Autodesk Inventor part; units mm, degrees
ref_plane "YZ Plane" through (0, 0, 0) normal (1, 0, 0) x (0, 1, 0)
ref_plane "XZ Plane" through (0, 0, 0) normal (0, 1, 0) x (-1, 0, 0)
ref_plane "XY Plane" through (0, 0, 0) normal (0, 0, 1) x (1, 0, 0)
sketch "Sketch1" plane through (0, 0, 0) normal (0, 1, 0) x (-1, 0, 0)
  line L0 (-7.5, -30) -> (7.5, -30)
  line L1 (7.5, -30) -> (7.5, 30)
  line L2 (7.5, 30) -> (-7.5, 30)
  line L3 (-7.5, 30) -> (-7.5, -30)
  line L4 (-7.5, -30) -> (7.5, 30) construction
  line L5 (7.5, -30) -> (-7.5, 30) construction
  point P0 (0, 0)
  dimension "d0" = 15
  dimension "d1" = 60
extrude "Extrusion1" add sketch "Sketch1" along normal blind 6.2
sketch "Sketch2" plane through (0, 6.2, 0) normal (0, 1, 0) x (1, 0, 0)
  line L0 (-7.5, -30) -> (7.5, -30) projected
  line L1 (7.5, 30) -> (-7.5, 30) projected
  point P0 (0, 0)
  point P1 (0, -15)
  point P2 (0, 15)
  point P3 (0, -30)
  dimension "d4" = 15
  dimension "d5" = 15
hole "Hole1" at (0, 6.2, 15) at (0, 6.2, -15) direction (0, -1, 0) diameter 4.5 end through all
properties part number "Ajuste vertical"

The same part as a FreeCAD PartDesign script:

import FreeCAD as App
import Part
import Sketcher

V = App.Vector

doc = App.newDocument("Part")
body = doc.addObject("PartDesign::Body", "Body")

sketch1 = body.newObject("Sketcher::SketchObject", "Sketch")
sketch1.AttachmentSupport = (doc.getObject("XZ_Plane"), [""])
sketch1.MapMode = "FlatFace"
sketch1.addGeometry([
    Part.LineSegment(V(8, 30, 0), V(8, -30, 0)),
    Part.LineSegment(V(8, -30, 0), V(-8, -30, 0)),
    Part.LineSegment(V(-8, -30, 0), V(-8, 30, 0)),
    Part.LineSegment(V(-8, 30, 0), V(8, 30, 0)),
], False)
sketch1.addConstraint([
    Sketcher.Constraint("Coincident", 0, 2, 1, 1),
    Sketcher.Constraint("Coincident", 1, 2, 2, 1),
    Sketcher.Constraint("Coincident", 2, 2, 3, 1),
    Sketcher.Constraint("Coincident", 3, 2, 0, 1),
    Sketcher.Constraint("Vertical", 0),
    Sketcher.Constraint("Horizontal", 1),
    Sketcher.Constraint("Vertical", 2),
    Sketcher.Constraint("Horizontal", 3),
    Sketcher.Constraint("Symmetric", 0, 2, 2, 2, -1, 1),
    Sketcher.Constraint("DistanceX", 1, 2, 1, 1, 15.0),
    Sketcher.Constraint("DistanceY", 0, 2, 0, 1, 60.0),
])
pad1 = body.newObject("PartDesign::Pad", "Pad")
pad1.Profile = sketch1
pad1.Length = 6.2
pad1.Reversed = True

sketch2 = body.newObject("Sketcher::SketchObject", "Sketch001")
sketch2.AttachmentSupport = (doc.getObject("XZ_Plane"), [""])
sketch2.MapMode = "FlatFace"
sketch2.AttachmentOffset = App.Placement(V(0, 0, -6.2), App.Rotation())
sketch2.addGeometry([
    Part.Circle(V(0, 15, 0), V(0, 0, 1), 2.2),
    Part.Circle(V(0, -15, 0), V(0, 0, 1), 2.2),
], False)
sketch2.addConstraint([
    Sketcher.Constraint("Equal", 0, 1),
    Sketcher.Constraint("Symmetric", 0, 3, 1, 3, -1, 1),
    Sketcher.Constraint("PointOnObject", 0, 3, -2),
    Sketcher.Constraint("Diameter", 0, 4.5),
    Sketcher.Constraint("DistanceY", -1, 1, 0, 3, 15.0),
])
doc.recompute()
hole = body.newObject("PartDesign::Hole", "Hole")
hole.Profile = sketch2
hole.ThreadType = "None"
hole.Diameter = 4.5
hole.DepthType = "ThroughAll"
hole.Reversed = True

doc.recompute()
